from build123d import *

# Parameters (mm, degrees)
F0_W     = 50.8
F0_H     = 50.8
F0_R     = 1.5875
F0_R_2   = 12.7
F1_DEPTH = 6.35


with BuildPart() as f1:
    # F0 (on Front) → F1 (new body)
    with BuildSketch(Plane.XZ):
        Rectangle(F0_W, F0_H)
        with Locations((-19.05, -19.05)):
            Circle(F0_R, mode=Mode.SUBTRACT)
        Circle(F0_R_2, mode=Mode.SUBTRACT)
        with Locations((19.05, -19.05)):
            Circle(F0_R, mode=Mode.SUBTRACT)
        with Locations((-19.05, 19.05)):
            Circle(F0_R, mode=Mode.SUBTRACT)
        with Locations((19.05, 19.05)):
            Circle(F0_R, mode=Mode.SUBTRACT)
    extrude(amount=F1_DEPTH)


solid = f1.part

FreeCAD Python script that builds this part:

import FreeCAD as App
import Part
import Sketcher
Q = App.Units.Quantity


def add_polygon(sketch, points):
    """Adds a closed chain of lines whose ends are joined by coincident constraints."""
    first, n = sketch.GeometryCount, len(points)
    for a, b in zip(points, points[1:] + points[:1]):
        sketch.addGeometry(Part.LineSegment(App.Vector(*a, 0), App.Vector(*b, 0)), False)
    for i in range(n):
        sketch.addConstraint(Sketcher.Constraint("Coincident", first + i, 2, first + (i + 1) % n, 1))

doc = App.newDocument("Part")
body = doc.addObject("PartDesign::Body", "Body")

# Sketch on XZ plane
sketch1 = body.newObject("Sketcher::SketchObject", "Sketch")
sketch1.AttachmentSupport = (doc.getObject("XZ_Plane"), [""])
sketch1.MapMode = "FlatFace"
add_polygon(sketch1, [(-25.4, 25.4), (-25.4, -25.4), (25.4, -25.4), (25.4, 25.4)])  # lines 0-3
sketch1.addGeometry(Part.Circle(App.Vector(-19.05, -19.05, 0), App.Vector(0, 0, 1), 1.5875), False)  # 4
sketch1.addGeometry(Part.Circle(App.Vector(19.05, -19.05, 0), App.Vector(0, 0, 1), 1.5875), False)  # 5
sketch1.addGeometry(Part.Circle(App.Vector(-19.05, 19.05, 0), App.Vector(0, 0, 1), 1.5875), False)  # 6
sketch1.addGeometry(Part.Circle(App.Vector(0, 0, 0), App.Vector(0, 0, 1), 12.7), False)  # 7
sketch1.addGeometry(Part.Circle(App.Vector(19.05, 19.05, 0), App.Vector(0, 0, 1), 1.5875), False)  # 8
sketch1.addConstraint([
    Sketcher.Constraint("Vertical", 0),
    Sketcher.Constraint("Horizontal", 1),
    Sketcher.Constraint("Vertical", 2),
    Sketcher.Constraint("Horizontal", 3),
    Sketcher.Constraint("Coincident", 7, 3, -1, 1),
    Sketcher.Constraint("Equal", 4, 5),
    Sketcher.Constraint("Equal", 5, 6),
    Sketcher.Constraint("Equal", 6, 8),
    Sketcher.Constraint("Symmetric", 5, 3, 6, 3, -1, 1),
    Sketcher.Constraint("Symmetric", 4, 3, 8, 3, -1, 1),
    Sketcher.Constraint("Symmetric", 0, 2, 2, 2, -1, 1),
    Sketcher.Constraint("Symmetric", 4, 3, 5, 3, -2),
    Sketcher.Constraint("Equal", 3, 0),
    Sketcher.Constraint("Diameter", 7, Q("1 in")),
    Sketcher.Constraint("DistanceX", 1, 1, 1, 2, Q("2 in")),
    Sketcher.Constraint("Diameter", 4, Q("0.125 in")),
    Sketcher.Constraint("DistanceX", 4, 3, 5, 3, Q("1.5 in")),
    Sketcher.Constraint("DistanceY", 4, 3, 6, 3, Q("1.5 in")),
])
pad1 = body.newObject("PartDesign::Pad", "Pad")
pad1.Profile = sketch1
pad1.Length = Q("0.25 in")

doc.recompute()
